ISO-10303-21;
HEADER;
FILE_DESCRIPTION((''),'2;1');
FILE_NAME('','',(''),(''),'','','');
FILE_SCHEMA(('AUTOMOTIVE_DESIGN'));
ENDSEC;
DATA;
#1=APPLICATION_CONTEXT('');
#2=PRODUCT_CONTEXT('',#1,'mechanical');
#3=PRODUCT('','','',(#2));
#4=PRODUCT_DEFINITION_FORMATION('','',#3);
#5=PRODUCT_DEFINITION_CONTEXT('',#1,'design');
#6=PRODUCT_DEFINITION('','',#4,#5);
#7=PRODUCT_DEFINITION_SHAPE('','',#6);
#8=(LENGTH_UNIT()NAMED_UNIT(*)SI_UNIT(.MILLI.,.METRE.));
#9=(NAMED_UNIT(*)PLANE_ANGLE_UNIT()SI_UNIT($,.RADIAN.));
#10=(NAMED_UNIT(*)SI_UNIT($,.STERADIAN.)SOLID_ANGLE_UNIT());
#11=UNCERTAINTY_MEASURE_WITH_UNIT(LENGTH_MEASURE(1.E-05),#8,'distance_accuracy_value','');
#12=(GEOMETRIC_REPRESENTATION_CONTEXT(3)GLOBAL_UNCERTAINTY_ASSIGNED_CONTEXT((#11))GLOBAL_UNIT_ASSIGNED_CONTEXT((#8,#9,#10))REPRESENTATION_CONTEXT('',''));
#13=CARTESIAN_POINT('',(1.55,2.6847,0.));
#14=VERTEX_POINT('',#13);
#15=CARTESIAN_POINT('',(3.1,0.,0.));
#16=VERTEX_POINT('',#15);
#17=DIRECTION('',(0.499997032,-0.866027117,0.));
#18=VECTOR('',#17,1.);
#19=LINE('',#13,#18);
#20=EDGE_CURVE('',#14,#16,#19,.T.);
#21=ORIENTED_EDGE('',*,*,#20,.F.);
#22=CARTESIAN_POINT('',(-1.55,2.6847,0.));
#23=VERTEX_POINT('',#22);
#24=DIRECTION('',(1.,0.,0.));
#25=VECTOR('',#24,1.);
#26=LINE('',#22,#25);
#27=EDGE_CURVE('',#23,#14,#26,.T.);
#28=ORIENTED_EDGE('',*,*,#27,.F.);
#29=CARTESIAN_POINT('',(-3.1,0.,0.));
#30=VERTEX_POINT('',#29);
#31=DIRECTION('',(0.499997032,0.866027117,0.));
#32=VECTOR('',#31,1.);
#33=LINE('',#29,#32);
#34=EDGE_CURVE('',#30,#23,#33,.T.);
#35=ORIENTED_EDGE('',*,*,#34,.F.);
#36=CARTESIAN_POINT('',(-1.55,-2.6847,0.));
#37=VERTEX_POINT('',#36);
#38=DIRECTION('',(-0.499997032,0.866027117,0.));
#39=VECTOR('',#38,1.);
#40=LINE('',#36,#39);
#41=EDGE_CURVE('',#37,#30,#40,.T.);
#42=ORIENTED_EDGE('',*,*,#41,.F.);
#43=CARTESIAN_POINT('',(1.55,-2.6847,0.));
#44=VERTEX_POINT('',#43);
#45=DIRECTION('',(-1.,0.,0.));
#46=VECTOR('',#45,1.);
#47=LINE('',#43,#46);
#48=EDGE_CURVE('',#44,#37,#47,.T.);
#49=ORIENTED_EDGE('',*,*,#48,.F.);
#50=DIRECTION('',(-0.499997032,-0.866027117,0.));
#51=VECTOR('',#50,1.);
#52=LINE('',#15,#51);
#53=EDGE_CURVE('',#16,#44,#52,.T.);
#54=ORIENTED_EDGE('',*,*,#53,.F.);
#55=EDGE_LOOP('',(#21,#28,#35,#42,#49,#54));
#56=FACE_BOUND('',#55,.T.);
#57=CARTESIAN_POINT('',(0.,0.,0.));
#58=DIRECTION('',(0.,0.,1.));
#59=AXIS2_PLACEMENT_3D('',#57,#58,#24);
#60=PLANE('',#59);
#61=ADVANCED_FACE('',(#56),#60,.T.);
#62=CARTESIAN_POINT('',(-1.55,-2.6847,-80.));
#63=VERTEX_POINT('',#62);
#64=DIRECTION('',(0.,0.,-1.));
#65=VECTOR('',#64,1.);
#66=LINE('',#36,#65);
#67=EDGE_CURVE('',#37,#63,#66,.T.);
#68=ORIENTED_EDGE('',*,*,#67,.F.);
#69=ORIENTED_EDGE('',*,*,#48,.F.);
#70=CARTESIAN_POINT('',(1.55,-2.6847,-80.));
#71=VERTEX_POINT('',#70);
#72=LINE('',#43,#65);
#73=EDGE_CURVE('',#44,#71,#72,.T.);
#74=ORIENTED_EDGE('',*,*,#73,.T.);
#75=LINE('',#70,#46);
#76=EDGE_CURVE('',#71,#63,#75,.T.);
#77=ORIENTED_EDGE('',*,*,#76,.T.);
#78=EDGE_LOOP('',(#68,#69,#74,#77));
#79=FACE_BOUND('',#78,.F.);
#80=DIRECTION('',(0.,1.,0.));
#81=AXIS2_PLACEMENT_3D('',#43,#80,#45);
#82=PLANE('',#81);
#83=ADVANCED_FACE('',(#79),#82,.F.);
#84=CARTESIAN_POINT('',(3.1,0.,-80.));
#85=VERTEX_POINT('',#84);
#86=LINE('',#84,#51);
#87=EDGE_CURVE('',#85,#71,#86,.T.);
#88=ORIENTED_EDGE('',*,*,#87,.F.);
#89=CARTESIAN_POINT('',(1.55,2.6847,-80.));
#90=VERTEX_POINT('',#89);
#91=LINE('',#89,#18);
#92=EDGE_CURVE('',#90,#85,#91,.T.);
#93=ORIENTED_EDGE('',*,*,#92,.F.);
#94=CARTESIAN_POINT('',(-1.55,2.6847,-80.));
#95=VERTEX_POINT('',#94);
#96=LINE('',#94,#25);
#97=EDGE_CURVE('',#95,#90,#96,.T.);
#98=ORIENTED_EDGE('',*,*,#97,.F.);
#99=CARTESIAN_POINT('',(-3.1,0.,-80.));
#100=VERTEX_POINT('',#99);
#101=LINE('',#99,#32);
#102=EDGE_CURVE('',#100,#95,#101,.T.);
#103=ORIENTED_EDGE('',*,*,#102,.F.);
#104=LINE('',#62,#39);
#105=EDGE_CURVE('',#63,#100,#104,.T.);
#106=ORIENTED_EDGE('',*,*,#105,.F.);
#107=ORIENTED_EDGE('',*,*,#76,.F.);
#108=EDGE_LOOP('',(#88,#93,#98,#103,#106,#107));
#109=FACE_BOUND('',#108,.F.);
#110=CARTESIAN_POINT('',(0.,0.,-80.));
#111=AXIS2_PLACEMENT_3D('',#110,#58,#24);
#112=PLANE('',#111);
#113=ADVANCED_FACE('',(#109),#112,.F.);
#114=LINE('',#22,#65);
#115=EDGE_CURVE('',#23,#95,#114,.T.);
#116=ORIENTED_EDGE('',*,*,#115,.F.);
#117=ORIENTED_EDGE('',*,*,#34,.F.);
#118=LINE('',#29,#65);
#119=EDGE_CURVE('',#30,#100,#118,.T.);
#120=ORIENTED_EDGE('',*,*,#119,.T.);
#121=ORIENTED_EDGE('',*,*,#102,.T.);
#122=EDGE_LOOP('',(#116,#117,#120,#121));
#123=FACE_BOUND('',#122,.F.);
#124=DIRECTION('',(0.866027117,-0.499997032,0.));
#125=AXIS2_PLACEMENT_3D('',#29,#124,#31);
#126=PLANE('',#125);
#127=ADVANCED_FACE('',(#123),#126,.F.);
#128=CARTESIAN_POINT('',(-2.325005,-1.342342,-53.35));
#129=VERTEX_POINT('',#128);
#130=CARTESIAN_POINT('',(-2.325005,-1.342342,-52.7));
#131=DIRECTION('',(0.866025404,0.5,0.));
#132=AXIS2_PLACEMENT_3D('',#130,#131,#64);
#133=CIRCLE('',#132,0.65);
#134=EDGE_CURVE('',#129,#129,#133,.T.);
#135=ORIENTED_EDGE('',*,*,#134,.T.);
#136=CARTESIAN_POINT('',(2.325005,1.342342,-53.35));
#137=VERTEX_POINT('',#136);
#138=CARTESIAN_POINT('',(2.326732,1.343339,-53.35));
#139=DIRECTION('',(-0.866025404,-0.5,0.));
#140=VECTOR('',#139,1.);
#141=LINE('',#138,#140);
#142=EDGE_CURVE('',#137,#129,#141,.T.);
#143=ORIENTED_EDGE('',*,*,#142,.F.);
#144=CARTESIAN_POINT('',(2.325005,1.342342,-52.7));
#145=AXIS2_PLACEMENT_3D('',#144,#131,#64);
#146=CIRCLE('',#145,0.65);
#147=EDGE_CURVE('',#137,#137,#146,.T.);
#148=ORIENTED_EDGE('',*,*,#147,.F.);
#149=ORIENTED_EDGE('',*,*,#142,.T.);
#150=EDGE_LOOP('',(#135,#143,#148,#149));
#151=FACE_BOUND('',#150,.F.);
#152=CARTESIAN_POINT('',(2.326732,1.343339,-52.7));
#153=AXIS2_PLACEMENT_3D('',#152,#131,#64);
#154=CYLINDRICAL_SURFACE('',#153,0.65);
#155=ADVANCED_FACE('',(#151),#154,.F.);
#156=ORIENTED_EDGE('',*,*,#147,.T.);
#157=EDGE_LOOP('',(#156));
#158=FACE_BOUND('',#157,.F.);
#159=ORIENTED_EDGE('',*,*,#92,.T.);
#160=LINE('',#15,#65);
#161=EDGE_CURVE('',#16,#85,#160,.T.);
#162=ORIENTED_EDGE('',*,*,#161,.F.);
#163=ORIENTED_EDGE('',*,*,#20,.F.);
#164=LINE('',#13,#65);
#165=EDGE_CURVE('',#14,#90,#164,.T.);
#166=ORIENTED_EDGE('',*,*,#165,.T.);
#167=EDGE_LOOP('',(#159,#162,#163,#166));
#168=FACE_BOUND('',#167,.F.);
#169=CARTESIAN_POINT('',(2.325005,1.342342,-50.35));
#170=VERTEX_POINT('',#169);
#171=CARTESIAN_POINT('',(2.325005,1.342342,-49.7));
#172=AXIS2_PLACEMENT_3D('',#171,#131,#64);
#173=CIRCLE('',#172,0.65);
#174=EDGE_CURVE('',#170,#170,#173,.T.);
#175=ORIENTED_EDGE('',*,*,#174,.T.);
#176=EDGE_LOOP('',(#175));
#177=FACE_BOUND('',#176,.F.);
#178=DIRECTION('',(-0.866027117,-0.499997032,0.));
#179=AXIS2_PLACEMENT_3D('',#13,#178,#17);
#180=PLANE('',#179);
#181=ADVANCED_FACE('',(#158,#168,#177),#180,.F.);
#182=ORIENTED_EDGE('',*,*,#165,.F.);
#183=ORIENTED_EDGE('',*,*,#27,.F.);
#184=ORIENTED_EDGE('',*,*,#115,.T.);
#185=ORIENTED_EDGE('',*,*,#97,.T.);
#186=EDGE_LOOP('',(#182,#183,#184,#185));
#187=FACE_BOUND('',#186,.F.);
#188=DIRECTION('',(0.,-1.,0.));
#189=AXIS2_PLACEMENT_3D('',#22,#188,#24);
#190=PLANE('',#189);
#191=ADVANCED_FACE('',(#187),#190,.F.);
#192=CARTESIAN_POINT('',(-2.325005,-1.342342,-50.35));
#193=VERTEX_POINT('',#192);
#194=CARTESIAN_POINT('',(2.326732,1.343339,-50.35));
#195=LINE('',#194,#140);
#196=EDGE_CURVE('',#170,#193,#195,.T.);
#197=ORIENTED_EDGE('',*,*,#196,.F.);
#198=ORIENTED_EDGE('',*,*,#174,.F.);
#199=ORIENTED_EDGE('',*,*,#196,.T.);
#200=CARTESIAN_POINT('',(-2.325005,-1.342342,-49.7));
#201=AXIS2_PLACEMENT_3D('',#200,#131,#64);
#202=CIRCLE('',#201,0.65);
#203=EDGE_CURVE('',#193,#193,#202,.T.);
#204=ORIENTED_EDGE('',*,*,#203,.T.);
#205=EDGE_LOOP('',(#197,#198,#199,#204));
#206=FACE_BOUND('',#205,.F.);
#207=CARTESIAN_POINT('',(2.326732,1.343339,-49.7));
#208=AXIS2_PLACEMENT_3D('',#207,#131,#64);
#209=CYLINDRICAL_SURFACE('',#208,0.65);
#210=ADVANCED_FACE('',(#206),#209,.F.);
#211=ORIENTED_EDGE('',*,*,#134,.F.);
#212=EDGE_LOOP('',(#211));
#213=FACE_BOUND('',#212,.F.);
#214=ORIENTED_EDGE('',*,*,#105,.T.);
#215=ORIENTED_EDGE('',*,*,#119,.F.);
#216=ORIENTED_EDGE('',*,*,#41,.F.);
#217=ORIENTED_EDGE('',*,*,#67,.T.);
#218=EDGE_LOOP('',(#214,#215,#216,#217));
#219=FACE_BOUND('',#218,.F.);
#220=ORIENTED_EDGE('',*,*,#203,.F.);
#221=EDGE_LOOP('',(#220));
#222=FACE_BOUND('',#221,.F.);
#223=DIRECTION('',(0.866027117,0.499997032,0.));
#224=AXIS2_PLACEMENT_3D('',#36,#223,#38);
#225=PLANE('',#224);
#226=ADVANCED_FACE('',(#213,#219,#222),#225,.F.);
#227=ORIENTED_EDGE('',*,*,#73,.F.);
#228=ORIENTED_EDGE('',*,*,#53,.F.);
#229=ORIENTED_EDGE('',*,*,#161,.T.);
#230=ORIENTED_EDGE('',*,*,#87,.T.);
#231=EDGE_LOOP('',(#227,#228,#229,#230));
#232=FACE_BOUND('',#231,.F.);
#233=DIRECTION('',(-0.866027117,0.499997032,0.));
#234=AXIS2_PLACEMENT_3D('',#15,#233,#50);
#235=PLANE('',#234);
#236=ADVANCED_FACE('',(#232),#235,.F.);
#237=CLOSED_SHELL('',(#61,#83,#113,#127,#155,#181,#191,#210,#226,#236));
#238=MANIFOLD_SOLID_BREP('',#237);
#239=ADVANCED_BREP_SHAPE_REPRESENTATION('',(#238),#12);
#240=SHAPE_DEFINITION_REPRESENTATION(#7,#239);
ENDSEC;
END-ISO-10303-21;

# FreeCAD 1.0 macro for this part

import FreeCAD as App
import Part
import Sketcher

V = App.Vector


def add_polygon(sketch, points):
    """Adds a closed chain of lines whose ends are joined by coincident constraints."""
    first, n = sketch.GeometryCount, len(points)
    for a, b in zip(points, points[1:] + points[:1]):
        sketch.addGeometry(Part.LineSegment(App.Vector(*a, 0), App.Vector(*b, 0)), False)
    for i in range(n):
        sketch.addConstraint(Sketcher.Constraint("Coincident", first + i, 2, first + (i + 1) % n, 1))

doc = App.newDocument("Part")
body = doc.addObject("PartDesign::Body", "Body")

# Sketch on XY plane
sketch1 = doc.addObject("Sketcher::SketchObject", "Sketch")
body.addObject(sketch1)
sketch1.AttachmentSupport = (doc.XY_Plane, [""])
sketch1.MapMode = "FlatFace"
add_polygon(sketch1, [(1.6, 2.7), (-1.6, 2.7), (-3.1, 0), (-1.6, -2.7), (1.6, -2.7), (3.1, 0)])  # lines 0-5
sketch1.addConstraint([
    Sketcher.Constraint("Horizontal", 0),
    Sketcher.Constraint("Horizontal", 3),
    Sketcher.Constraint("Symmetric", 0, 2, 3, 2, -1, 1),
    Sketcher.Constraint("Symmetric", 1, 2, 4, 2, -1, 1),
    Sketcher.Constraint("PointOnObject", 1, 2, -1),
    Sketcher.Constraint("Parallel", 2, 5),
    Sketcher.Constraint("Vertical", 0, 2, 2, 2),
    Sketcher.Constraint("DistanceX", 0, 2, 0, 1, 3.1),
    Sketcher.Constraint("Distance", 1, 3.1),
    Sketcher.Constraint("DistanceX", 1, 2, -1, 1, 3.1),
])
pad1 = doc.addObject("PartDesign::Pad", "Pad")
body.addObject(pad1)
pad1.Profile = sketch1
pad1.Length = 80
pad1.Reversed = True

# Sketch on an angled plane
sketch2 = doc.addObject("Sketcher::SketchObject", "Sketch001")
body.addObject(sketch2)
sketch2.Placement = App.Placement(V(3.1, 0, 0), App.Rotation(V(0, 0, -1), V(-0.5, 0.866025404, 0), V(0.866025404, 0.5, 0), "ZXY"))
sketch2.addGeometry([
    Part.Circle(V(49.7, 1.6, 0), V(0, 0, 1), 0.7),
    Part.Circle(V(52.7, 1.6, 0), V(0, 0, 1), 0.7),
], False)
sketch2.addConstraint([
    Sketcher.Constraint("Equal", 0, 1),
    Sketcher.Constraint("Horizontal", 0, 3, 1, 3),
    Sketcher.Constraint("Diameter", 0, 1.3),
    Sketcher.Constraint("DistanceX", 0, 3, 1, 3, 3.0),
    Sketcher.Constraint("DistanceX", -1, 1, 0, 3, 49.7),
    Sketcher.Constraint("DistanceY", -1, 1, 0, 3, 1.55),
])
pocket1 = doc.addObject("PartDesign::Pocket", "Pocket")
body.addObject(pocket1)
pocket1.Profile = sketch2
pocket1.Length = 80

doc.recompute()
